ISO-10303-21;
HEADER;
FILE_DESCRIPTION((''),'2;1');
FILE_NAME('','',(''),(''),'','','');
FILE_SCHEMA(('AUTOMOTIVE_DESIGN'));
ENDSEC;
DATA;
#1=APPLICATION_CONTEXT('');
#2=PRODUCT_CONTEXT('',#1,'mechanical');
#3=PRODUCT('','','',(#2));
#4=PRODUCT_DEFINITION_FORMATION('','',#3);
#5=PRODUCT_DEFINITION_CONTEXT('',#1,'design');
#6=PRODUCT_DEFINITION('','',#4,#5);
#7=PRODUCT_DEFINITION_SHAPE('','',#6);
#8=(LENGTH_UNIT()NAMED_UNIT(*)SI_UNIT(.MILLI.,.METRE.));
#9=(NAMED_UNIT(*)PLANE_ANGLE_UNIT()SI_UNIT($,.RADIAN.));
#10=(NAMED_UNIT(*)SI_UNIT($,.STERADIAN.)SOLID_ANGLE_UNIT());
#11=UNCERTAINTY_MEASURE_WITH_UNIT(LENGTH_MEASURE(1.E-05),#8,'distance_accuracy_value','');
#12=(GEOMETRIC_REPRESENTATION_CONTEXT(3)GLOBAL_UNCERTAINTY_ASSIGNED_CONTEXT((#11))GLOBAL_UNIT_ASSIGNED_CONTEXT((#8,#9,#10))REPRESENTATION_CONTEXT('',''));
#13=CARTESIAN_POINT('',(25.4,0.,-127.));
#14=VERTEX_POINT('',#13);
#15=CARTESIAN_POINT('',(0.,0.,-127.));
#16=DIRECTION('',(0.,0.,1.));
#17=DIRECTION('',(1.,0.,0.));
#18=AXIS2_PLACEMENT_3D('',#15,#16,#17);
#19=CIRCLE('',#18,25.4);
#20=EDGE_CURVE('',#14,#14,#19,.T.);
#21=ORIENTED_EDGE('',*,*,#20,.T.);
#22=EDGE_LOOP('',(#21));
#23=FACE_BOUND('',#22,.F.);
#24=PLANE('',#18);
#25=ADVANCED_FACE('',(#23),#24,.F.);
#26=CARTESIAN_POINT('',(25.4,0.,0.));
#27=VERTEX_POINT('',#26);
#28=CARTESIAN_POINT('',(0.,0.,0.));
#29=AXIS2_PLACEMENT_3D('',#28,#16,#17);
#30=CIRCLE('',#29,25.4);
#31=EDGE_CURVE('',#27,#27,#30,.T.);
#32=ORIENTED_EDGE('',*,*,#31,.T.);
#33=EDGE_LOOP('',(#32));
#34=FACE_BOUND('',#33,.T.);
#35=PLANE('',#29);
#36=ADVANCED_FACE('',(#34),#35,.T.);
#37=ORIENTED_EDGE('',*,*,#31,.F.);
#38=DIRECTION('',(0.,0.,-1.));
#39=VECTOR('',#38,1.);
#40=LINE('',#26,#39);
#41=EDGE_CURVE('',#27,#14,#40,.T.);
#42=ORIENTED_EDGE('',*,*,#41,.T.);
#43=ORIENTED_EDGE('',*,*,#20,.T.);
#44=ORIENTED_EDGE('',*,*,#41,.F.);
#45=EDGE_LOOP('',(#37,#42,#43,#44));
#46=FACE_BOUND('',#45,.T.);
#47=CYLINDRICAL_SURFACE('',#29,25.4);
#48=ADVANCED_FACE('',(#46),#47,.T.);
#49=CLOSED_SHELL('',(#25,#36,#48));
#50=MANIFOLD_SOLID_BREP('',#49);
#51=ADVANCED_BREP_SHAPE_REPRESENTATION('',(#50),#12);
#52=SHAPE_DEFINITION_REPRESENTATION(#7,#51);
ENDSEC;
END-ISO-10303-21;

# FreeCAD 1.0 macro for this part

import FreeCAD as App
import Part
import Sketcher

V = App.Vector
Q = App.Units.Quantity

doc = App.newDocument("Part")
body = doc.addObject("PartDesign::Body", "Body")

sketch1 = body.newObject("Sketcher::SketchObject", "Sketch")
sketch1.AttachmentSupport = (doc.getObject("XY_Plane"), [""])
sketch1.MapMode = "FlatFace"
sketch1.addGeometry(Part.Circle(V(0, 0, 0), V(0, 0, 1), 25), False)
sketch1.addConstraint([
    Sketcher.Constraint("Coincident", 0, 3, -1, 1),
    Sketcher.Constraint("Diameter", 0, Q("2 in")),
])
pad1 = body.newObject("PartDesign::Pad", "Pad")
pad1.Profile = sketch1
pad1.Length = Q("5 in")
pad1.Reversed = True

doc.recompute()
